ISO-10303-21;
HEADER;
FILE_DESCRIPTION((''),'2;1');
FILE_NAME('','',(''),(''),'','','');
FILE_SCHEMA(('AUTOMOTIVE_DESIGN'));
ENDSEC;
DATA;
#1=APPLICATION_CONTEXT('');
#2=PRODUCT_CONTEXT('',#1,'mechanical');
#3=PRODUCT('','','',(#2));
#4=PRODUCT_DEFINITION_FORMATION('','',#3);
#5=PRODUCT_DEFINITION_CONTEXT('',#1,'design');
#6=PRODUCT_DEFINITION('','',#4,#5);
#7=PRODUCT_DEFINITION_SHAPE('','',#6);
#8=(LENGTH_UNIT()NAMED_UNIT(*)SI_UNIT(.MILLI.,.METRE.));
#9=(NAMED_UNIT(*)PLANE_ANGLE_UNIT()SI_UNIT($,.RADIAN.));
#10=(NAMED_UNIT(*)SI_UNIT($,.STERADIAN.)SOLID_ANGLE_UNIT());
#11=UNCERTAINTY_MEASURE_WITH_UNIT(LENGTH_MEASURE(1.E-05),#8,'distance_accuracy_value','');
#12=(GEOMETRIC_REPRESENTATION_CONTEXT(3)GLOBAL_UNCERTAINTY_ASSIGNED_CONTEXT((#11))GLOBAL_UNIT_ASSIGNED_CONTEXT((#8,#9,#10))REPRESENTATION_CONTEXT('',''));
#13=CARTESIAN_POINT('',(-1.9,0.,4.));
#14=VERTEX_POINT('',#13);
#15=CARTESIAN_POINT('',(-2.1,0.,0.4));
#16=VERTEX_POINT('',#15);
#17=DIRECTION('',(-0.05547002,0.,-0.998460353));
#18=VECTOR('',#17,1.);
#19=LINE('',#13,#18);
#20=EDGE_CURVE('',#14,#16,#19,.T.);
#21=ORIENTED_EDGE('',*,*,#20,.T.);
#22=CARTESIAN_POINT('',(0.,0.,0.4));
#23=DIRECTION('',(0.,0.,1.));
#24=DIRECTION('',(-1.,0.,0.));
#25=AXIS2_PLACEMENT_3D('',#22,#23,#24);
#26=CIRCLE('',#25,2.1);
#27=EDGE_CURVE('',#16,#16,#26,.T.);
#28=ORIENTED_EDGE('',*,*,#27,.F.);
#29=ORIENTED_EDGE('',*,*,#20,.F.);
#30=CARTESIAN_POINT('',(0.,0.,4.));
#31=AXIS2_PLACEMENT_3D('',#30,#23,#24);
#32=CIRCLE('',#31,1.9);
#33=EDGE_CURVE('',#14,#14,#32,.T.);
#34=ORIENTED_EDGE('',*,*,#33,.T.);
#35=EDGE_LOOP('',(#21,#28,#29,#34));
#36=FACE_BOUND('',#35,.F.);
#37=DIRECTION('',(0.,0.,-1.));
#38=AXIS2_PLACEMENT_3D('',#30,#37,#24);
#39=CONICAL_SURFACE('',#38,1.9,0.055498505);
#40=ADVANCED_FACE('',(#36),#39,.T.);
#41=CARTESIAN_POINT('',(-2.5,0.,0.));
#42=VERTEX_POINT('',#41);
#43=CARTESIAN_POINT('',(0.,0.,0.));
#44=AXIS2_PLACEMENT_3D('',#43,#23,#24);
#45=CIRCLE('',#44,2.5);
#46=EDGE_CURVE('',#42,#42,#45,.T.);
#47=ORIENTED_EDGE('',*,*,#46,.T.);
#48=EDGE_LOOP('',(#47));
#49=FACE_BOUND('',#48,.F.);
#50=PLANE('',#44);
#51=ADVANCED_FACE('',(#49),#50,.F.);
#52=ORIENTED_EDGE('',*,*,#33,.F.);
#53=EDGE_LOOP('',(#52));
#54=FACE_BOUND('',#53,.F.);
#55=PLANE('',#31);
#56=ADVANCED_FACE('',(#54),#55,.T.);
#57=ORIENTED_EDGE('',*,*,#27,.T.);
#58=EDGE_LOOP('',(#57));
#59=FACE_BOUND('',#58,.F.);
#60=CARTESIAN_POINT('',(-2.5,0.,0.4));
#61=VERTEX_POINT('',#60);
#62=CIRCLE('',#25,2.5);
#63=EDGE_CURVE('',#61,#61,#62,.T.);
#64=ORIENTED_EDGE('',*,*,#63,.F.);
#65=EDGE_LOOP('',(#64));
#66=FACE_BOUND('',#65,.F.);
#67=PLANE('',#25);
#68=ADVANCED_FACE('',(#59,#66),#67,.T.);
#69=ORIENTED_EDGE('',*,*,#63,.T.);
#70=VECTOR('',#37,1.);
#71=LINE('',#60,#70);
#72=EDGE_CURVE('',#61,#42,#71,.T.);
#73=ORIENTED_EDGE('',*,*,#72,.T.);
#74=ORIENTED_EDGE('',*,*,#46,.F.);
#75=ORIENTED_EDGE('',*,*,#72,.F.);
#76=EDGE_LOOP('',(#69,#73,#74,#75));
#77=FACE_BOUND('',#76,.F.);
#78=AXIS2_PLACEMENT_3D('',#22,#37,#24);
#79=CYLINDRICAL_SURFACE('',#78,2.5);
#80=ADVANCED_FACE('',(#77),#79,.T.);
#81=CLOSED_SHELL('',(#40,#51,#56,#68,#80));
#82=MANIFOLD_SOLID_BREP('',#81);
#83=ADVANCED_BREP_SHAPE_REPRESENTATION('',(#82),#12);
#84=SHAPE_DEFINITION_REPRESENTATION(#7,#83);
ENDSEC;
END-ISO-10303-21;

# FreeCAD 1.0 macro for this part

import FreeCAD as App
import Part
import Sketcher
Q = App.Units.Quantity

doc = App.newDocument("Part")
body = doc.addObject("PartDesign::Body", "Body")

sketch1 = body.newObject("Sketcher::SketchObject", "Sketch")
sketch1.AttachmentSupport = (doc.getObject("XZ_Plane"), [""])
sketch1.MapMode = "FlatFace"
sketch1.addGeometry([
    Part.LineSegment(App.Vector(-2.5, 0.4, 0), App.Vector(-2.5, 0, 0)),
    Part.LineSegment(App.Vector(-2.5, 0, 0), App.Vector(0, 0, 0)),
    Part.LineSegment(App.Vector(0, 0, 0), App.Vector(0, 4, 0)),
    Part.LineSegment(App.Vector(0, 4, 0), App.Vector(-1.9, 4, 0)),
    Part.LineSegment(App.Vector(-1.9, 4, 0), App.Vector(-2.1, 0.4, 0)),
    Part.LineSegment(App.Vector(-2.1, 0.4, 0), App.Vector(-2.5, 0.4, 0)),
], False)
sketch1.addConstraint([
    Sketcher.Constraint("Coincident", 0, 2, 1, 1),
    Sketcher.Constraint("Coincident", 1, 2, 2, 1),
    Sketcher.Constraint("Coincident", 2, 2, 3, 1),
    Sketcher.Constraint("Coincident", 3, 2, 4, 1),
    Sketcher.Constraint("Coincident", 4, 2, 5, 1),
    Sketcher.Constraint("Coincident", 5, 2, 0, 1),
    Sketcher.Constraint("Vertical", 0),
    Sketcher.Constraint("Horizontal", 1),
    Sketcher.Constraint("Vertical", 2),
    Sketcher.Constraint("Horizontal", 3),
    Sketcher.Constraint("Horizontal", 5),
    Sketcher.Constraint("Coincident", 1, 2, -1, 1),
    Sketcher.Constraint("Equal", 5, 0),
    Sketcher.Constraint("DistanceY", 2, 1, 2, 2, Q("4 mm")),
    Sketcher.Constraint("DistanceX", 1, 1, 1, 2, Q("2.5 mm")),
    Sketcher.Constraint("DistanceX", 3, 2, 3, 1, Q("1.9 mm")),
    Sketcher.Constraint("DistanceX", 5, 2, 5, 1, Q("0.4 mm")),
])
revolution = body.newObject("PartDesign::Revolution", "Revolution")
revolution.Profile = sketch1
revolution.ReferenceAxis = (sketch1, ["V_Axis"])
revolution.Angle = 360

doc.recompute()
